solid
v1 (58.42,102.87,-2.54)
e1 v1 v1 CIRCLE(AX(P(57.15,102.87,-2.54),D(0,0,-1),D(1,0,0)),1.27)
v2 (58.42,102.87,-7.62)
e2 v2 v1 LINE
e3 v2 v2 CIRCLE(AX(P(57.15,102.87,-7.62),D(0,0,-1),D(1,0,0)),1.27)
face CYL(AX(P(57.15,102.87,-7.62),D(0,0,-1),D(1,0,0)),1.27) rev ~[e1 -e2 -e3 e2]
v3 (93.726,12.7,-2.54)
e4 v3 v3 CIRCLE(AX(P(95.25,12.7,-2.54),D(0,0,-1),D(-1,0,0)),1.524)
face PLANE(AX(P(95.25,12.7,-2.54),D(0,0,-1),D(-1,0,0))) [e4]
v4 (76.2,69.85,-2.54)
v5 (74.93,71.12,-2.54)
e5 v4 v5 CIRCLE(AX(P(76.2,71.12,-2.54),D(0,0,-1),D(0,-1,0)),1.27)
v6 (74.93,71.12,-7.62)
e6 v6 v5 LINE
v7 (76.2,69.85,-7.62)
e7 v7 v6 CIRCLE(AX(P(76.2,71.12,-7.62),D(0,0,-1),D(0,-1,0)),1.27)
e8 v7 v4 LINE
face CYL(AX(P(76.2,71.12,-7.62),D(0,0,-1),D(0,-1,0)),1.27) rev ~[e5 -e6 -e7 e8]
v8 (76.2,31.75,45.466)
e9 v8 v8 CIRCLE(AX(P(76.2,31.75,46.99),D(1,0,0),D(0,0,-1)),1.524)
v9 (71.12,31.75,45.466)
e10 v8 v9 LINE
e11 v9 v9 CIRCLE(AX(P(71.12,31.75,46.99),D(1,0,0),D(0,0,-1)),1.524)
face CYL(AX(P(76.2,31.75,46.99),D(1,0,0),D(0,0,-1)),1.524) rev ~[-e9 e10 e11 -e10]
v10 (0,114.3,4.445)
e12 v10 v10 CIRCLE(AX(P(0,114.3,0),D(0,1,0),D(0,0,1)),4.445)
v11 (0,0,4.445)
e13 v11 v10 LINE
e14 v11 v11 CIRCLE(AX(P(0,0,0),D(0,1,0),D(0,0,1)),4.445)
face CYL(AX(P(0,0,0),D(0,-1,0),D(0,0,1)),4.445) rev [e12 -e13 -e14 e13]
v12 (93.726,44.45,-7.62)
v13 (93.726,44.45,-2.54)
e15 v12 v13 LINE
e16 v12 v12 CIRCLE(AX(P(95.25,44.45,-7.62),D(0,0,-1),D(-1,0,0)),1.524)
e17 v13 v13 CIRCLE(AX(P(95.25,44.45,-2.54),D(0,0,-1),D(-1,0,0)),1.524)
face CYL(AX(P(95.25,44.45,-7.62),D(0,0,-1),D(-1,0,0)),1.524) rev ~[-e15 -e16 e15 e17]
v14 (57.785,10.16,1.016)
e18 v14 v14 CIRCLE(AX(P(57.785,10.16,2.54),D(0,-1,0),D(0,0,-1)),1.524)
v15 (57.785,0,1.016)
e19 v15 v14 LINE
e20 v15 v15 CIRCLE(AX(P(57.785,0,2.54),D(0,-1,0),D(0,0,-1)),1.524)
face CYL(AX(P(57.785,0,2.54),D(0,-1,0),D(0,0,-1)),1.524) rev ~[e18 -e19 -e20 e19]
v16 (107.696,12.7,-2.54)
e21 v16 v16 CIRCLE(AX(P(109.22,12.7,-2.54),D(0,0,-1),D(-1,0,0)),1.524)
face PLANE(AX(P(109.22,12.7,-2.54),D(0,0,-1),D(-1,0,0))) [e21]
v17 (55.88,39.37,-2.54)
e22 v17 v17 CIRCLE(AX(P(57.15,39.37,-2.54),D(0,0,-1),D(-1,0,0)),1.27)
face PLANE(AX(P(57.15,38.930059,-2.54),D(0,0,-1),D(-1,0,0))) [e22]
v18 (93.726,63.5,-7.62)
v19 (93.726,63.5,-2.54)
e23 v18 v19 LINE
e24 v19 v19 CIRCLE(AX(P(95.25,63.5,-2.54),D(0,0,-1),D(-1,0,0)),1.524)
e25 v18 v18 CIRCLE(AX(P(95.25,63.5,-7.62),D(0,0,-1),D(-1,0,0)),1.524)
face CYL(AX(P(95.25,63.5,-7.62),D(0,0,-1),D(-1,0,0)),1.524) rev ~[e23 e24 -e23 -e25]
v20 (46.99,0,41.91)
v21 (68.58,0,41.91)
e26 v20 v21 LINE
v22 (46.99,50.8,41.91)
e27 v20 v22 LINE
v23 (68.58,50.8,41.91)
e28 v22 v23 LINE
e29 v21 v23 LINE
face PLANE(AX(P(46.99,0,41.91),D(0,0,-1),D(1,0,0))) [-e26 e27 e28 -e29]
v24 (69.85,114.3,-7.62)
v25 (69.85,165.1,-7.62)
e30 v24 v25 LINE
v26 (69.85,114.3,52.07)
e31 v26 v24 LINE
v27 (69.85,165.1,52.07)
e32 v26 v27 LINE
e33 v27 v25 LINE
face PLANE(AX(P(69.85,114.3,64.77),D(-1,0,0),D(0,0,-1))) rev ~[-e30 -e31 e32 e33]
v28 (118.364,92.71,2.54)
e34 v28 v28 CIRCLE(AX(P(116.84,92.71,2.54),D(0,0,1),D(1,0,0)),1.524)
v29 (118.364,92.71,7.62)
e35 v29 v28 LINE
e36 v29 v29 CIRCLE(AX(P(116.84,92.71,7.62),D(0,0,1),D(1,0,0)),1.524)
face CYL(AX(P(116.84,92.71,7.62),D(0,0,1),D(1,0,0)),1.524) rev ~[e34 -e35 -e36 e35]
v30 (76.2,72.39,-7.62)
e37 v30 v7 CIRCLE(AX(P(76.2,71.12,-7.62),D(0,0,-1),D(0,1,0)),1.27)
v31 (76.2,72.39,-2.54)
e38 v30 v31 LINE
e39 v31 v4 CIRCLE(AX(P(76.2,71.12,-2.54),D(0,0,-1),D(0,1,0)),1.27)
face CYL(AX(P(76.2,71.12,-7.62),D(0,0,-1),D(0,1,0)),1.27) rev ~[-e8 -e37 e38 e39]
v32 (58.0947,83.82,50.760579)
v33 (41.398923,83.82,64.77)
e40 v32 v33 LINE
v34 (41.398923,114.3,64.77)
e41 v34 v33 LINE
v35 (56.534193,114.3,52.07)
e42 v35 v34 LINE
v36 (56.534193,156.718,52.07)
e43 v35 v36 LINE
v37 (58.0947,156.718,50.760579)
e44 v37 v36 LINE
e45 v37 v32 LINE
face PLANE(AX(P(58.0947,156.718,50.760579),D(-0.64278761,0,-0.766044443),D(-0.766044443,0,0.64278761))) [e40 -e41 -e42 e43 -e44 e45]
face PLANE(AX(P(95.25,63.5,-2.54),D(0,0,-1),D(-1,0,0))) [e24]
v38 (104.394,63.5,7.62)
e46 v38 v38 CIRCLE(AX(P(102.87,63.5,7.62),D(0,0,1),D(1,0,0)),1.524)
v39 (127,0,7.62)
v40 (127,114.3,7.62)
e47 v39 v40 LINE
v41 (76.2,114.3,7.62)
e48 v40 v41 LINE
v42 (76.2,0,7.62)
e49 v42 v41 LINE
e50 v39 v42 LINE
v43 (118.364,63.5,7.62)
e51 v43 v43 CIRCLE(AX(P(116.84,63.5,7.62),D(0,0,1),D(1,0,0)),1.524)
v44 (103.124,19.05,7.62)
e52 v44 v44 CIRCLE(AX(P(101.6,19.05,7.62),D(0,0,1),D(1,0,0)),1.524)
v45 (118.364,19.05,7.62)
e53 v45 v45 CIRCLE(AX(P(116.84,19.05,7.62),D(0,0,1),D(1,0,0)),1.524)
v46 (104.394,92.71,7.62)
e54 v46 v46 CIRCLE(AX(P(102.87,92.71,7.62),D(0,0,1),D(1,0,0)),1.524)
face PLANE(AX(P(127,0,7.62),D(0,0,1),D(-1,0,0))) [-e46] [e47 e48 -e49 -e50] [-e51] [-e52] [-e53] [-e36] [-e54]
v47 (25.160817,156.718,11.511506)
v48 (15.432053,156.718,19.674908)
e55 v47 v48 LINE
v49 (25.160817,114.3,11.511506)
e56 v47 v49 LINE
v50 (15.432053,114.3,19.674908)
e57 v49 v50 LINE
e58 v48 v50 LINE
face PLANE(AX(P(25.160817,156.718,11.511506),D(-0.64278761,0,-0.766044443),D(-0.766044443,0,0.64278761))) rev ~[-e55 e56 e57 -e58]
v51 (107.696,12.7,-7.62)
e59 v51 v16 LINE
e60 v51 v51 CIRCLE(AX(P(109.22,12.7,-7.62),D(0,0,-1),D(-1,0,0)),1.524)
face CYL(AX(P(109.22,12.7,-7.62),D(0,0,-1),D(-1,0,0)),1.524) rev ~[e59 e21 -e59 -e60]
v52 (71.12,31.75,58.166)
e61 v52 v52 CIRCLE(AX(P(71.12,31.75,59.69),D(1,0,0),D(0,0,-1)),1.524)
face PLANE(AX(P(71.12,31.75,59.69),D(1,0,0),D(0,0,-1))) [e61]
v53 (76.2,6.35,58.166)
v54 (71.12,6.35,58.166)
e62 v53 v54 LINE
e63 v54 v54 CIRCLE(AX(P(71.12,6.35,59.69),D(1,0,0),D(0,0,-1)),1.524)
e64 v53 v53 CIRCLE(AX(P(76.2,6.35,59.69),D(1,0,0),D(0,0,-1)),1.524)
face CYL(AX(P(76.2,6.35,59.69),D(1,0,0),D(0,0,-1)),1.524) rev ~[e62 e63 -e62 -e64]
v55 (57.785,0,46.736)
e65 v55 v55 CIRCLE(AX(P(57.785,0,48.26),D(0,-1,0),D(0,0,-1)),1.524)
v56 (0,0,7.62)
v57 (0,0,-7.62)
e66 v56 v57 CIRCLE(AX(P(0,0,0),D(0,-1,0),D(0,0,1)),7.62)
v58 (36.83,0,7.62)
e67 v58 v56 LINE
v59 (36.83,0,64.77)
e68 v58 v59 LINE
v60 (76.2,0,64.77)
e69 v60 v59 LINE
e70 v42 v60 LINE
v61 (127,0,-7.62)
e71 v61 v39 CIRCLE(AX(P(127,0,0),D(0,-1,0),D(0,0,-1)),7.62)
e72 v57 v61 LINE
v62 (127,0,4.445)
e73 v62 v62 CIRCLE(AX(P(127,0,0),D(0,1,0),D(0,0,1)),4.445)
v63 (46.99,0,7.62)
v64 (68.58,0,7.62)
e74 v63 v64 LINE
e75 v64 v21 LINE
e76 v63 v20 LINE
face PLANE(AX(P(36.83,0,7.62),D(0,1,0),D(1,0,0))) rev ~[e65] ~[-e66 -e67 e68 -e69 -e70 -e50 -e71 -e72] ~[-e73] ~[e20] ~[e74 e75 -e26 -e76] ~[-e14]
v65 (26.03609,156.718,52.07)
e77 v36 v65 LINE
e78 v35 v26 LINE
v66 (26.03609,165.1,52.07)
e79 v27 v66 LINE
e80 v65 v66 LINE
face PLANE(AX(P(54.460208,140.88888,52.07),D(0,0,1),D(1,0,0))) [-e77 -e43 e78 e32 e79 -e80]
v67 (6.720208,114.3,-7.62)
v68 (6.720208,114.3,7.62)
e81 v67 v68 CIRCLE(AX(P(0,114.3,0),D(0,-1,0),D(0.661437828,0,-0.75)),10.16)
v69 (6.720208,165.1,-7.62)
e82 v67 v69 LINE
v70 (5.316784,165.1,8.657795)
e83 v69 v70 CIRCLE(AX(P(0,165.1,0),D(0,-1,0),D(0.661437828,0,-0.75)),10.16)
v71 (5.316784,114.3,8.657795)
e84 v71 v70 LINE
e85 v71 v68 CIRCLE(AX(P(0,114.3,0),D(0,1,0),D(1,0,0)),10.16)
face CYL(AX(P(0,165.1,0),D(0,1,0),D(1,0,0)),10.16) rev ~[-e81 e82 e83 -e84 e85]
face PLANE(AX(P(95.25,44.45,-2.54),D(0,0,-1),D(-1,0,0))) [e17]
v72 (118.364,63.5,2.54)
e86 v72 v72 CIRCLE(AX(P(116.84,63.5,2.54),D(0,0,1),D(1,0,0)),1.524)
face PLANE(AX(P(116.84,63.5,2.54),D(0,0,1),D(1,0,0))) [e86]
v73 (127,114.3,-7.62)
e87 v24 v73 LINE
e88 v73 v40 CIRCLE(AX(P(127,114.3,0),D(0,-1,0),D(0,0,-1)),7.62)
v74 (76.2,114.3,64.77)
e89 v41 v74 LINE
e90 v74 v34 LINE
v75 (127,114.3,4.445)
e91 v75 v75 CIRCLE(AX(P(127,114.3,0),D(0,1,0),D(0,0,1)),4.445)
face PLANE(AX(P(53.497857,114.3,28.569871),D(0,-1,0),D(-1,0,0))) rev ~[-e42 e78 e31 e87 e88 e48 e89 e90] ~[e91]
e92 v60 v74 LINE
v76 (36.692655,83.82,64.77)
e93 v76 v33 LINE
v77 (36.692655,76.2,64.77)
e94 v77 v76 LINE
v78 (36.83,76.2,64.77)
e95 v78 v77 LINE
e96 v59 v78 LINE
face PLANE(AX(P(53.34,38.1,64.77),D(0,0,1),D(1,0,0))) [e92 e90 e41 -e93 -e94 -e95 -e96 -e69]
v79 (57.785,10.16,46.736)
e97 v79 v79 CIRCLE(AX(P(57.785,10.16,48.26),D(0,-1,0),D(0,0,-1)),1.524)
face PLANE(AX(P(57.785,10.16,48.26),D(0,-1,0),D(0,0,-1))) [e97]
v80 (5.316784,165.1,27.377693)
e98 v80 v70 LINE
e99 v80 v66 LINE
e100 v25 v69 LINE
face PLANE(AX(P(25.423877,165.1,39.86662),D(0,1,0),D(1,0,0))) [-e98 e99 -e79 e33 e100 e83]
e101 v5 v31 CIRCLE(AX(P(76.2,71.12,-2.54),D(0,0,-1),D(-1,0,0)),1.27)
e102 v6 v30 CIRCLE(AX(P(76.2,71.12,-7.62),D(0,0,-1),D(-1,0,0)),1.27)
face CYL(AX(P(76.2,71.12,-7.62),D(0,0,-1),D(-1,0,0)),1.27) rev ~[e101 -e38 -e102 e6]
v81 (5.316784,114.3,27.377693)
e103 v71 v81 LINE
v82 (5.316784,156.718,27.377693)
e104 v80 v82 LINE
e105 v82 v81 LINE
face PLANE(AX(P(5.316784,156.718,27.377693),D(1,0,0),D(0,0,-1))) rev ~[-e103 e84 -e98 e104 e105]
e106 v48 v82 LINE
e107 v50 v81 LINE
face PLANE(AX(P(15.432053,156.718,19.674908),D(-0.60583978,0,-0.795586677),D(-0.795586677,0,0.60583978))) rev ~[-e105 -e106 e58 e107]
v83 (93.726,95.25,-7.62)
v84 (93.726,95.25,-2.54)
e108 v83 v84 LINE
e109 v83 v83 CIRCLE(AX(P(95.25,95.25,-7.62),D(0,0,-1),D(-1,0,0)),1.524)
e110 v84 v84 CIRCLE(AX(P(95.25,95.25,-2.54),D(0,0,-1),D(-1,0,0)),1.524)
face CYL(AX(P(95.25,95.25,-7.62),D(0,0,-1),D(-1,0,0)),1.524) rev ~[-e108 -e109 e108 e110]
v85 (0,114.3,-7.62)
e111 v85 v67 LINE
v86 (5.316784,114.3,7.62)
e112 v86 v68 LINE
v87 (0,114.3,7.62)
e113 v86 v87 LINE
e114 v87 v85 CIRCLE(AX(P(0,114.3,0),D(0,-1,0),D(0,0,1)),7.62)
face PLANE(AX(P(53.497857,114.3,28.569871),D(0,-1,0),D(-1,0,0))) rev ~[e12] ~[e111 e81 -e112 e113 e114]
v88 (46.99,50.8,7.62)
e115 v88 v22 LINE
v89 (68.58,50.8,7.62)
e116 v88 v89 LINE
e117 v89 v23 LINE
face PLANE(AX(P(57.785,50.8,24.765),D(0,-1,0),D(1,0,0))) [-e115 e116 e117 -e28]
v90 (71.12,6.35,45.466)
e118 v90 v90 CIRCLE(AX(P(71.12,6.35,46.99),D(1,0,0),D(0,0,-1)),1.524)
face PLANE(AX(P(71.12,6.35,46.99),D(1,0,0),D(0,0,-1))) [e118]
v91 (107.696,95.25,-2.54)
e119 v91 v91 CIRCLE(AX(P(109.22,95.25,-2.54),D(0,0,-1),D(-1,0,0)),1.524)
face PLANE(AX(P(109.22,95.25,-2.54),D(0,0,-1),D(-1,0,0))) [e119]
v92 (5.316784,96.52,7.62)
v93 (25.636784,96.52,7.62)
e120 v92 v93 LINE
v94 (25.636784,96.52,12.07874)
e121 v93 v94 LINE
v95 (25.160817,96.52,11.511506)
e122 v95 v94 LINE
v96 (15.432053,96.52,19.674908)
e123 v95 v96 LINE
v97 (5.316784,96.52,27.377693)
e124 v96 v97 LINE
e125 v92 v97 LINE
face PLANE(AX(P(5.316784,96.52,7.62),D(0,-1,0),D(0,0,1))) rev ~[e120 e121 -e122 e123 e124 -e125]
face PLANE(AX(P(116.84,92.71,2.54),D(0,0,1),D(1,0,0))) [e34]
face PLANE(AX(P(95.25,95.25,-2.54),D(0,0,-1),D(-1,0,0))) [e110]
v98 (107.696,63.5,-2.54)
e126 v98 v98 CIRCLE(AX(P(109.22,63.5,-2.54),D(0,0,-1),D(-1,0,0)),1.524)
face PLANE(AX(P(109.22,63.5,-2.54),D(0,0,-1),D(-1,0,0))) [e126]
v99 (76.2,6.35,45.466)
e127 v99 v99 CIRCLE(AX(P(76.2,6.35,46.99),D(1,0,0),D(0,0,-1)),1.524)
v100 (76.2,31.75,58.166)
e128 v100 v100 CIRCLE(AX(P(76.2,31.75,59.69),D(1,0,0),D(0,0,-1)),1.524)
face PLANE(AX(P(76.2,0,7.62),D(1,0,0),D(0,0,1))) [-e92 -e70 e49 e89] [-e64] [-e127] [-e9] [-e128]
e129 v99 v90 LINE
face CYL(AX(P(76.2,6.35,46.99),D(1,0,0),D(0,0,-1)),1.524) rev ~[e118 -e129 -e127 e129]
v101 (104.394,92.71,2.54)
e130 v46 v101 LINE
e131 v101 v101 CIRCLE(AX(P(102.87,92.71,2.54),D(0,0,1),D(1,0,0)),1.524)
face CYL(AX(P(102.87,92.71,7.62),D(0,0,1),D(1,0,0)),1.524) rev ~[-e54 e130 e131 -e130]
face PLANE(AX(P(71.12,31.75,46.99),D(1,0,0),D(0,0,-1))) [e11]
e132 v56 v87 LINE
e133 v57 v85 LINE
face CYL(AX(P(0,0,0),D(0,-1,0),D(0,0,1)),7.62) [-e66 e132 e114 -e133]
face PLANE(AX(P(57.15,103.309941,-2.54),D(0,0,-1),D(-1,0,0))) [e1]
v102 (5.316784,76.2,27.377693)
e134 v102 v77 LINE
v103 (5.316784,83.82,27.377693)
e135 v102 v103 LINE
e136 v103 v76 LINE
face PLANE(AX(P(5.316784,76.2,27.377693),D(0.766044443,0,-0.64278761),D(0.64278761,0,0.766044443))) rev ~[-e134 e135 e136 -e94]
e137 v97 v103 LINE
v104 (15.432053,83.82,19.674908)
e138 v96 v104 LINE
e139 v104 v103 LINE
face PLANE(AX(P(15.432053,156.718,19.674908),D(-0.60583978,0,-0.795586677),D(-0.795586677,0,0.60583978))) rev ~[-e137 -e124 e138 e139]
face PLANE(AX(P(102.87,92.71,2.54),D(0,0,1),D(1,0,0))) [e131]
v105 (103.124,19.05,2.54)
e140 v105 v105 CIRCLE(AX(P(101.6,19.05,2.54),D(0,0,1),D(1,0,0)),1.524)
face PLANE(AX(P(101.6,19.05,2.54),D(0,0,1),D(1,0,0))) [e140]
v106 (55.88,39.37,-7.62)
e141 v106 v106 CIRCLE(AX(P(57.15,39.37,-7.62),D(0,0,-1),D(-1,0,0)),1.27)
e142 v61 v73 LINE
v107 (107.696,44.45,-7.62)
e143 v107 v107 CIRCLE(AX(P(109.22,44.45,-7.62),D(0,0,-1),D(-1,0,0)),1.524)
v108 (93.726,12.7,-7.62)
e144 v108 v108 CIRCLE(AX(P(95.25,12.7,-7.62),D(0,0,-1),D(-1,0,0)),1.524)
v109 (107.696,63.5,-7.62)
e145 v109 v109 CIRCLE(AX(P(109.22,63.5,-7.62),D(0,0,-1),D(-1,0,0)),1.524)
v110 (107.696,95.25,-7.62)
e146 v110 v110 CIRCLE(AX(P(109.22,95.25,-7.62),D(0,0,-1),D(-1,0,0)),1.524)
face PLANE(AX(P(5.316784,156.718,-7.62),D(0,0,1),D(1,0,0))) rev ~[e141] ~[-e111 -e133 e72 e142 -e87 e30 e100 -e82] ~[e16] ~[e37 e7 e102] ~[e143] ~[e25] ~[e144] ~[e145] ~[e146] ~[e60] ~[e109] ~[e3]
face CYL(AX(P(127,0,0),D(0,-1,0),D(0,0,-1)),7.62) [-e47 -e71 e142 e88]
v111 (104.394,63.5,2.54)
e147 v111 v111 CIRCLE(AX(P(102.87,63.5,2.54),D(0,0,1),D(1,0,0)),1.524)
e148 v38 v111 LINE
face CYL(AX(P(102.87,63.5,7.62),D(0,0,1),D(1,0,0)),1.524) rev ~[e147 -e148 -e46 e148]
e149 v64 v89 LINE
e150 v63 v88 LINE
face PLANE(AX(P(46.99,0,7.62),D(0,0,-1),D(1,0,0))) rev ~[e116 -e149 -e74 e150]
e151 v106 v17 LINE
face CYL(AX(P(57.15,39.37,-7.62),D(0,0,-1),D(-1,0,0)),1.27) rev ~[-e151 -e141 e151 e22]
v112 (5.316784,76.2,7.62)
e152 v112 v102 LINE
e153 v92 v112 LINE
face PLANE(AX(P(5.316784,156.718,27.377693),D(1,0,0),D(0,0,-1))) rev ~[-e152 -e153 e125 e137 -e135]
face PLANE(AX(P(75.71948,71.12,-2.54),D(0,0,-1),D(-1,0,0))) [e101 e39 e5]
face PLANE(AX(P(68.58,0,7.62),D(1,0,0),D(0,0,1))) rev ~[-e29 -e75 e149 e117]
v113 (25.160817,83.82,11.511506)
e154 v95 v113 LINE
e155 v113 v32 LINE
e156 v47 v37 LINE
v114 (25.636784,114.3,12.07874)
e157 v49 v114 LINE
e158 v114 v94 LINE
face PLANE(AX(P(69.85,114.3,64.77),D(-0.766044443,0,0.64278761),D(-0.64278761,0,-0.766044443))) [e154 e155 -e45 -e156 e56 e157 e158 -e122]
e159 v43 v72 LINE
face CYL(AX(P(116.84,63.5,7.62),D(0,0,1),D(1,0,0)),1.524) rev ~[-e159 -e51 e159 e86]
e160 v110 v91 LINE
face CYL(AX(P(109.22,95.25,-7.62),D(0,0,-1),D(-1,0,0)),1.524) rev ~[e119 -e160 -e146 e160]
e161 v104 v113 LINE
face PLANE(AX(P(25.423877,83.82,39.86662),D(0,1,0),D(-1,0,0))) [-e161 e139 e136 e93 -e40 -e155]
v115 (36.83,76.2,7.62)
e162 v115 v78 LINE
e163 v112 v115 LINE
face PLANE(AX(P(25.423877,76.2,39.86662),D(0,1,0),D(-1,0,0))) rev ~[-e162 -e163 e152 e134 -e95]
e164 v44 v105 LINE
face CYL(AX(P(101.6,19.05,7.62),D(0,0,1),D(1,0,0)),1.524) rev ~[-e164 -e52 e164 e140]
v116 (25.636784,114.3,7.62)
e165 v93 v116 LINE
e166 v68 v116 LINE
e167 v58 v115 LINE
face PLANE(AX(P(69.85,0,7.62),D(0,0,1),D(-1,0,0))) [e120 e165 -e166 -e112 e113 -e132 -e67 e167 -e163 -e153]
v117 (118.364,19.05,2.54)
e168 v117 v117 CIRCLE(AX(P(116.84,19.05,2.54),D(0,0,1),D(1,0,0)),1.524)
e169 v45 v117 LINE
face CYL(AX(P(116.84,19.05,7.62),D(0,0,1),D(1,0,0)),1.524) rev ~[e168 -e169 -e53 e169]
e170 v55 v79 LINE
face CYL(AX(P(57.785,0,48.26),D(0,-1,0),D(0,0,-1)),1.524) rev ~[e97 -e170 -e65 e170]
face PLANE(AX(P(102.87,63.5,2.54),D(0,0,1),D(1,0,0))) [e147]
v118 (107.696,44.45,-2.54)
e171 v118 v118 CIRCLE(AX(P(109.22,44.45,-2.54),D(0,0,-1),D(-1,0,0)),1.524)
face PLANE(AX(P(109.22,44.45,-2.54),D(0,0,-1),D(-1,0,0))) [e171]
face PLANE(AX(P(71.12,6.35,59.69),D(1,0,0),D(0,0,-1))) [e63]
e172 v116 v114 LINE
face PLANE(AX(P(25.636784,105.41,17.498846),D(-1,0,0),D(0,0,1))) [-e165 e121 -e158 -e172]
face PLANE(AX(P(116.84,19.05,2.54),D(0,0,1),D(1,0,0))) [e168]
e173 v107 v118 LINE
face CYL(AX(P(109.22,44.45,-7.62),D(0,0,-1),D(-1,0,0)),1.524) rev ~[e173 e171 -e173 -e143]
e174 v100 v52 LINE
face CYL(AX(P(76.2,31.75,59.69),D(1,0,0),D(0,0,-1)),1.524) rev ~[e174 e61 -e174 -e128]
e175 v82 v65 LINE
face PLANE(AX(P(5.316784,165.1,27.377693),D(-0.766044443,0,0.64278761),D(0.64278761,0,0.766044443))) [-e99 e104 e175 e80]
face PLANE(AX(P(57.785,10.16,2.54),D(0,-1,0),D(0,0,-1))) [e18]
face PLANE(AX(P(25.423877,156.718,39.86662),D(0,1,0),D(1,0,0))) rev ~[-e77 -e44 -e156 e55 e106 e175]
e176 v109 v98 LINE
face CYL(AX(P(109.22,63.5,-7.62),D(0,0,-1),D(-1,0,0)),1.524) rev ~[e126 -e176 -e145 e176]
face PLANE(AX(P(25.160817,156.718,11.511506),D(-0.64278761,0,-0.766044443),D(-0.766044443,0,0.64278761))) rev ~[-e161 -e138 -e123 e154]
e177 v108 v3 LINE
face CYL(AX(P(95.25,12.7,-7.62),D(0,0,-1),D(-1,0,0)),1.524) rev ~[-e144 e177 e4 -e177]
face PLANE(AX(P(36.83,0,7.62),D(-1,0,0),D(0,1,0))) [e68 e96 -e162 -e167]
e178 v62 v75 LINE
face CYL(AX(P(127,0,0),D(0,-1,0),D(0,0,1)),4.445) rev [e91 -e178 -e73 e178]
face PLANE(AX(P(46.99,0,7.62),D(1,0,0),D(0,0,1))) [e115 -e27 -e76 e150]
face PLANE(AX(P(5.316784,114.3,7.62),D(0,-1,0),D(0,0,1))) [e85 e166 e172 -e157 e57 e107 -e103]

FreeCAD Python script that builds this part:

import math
import FreeCAD as App
import Part
import Sketcher
Q = App.Units.Quantity

doc = App.newDocument("Part")
params = doc.addObject("Spreadsheet::Sheet", "Params")
for row, (alias, value) in enumerate([
    ("sketch1_radius", "0.3 in"),
    ("sketch1_diameter", "0.35 in"),
    ("sketch1_width", "5 in"),
    ("sketch1_width2", "2 in"),
    ("sketch1_width3", "2.75 in"),
    ("pad1_length", "4.5 in"),
    ("sketch2_height", "2.25 in"),
    ("pad2_length", "1.5 in"),
    ("sketch3_height", "0.6 in"),
    ("sketch3_height2", "2.85 in"),
    ("pad3_length", "2 in"),
    ("pad4_length", "0.3 in"),
    ("sketch5_height", "0.6 in"),
    ("pad5_length", "0.33 in"),
    ("sketch6_height", "0.6 in"),
    ("sketch6_length", "0.2 in"),
    ("sketch6_length2", "0.5 in"),
    ("pad6_length", "3 in"),
    ("pad7_length", "0.3 in"),
    ("pad8_length", "0.33 in"),
    ("pad9_length", "2.9 in"),
    ("sketch10_length", "0.72 in"),
    ("pad10_length", "2.89 in"),
    ("sketch11_width", "0.7 in"),
    ("pocket1_length", "0.8 in"),
    ("sketch12_diameter", "0.8 in"),
    ("pocket2_length", "2 in"),
    ("sketch13_height", "2 in"),
    ("sketch13_height2", "0.33 in"),
    ("pocket3_length", "0.5 in"),
    ("sketch14_height", "3 in"),
    ("sketch14_width", "1.3 in"),
    ("pad11_length", "2.25 in"),
    ("sketch15_diameter", "0.12 in"),
    ("pocket4_length", "0.2 in"),
    ("sketch16_diameter", "0.12 in"),
    ("pocket5_length", "0.2 in"),
    ("sketch17_diameter", "0.12 in"),
    ("pocket6_length", "0.2 in"),
    ("sketch18_width", "0.85 in"),
    ("sketch18_height", "1.35 in"),
    ("pocket7_length", "2 in"),
    ("sketch19_diameter", "0.12 in"),
    ("pocket8_length", "0.4 in"),
    ("sketch20_diameter", "0.1 in"),
    ("pocket9_length", "0.2 in"),
], start=1):
    params.set(f"A{row}", alias)
    params.set(f"B{row}", "=" + value)
    params.setAlias(f"B{row}", alias)

body = doc.addObject("PartDesign::Body", "Body")

sketch1 = body.newObject("Sketcher::SketchObject", "Sketch")
sketch1.AttachmentSupport = (doc.getObject("XZ_Plane"), [""])
sketch1.MapMode = "FlatFace"
sketch1.addGeometry([
    Part.LineSegment(App.Vector(127, -7.62, 0), App.Vector(0, -7.62, 0)),
    Part.ArcOfCircle(Part.Circle(App.Vector(0, 0, 0), App.Vector(0, 0, 1), 7.62), math.radians(90), math.radians(270)),
    Part.LineSegment(App.Vector(0, 7.62, 0), App.Vector(69.85, 7.62, 0)),
    Part.LineSegment(App.Vector(69.85, 7.62, 0), App.Vector(69.85, 64.77, 0)),
    Part.LineSegment(App.Vector(69.85, 64.77, 0), App.Vector(76.2, 64.77, 0)),
    Part.LineSegment(App.Vector(76.2, 64.77, 0), App.Vector(76.2, 7.62, 0)),
    Part.LineSegment(App.Vector(76.2, 7.62, 0), App.Vector(127, 7.62, 0)),
    Part.ArcOfCircle(Part.Circle(App.Vector(127, 0, 0), App.Vector(0, 0, 1), 7.62), math.radians(-90), math.radians(90)),
    Part.Circle(App.Vector(127, 0, 0), App.Vector(0, 0, 1), 4.445),
    Part.Circle(App.Vector(0, 0, 0), App.Vector(0, 0, 1), 4.445),
], False)
sketch1.addConstraint([
    Sketcher.Constraint("Tangent", 0, 2, 1, 2),
    Sketcher.Constraint("Tangent", 1, 1, 2, 1),
    Sketcher.Constraint("Coincident", 2, 2, 3, 1),
    Sketcher.Constraint("Coincident", 3, 2, 4, 1),
    Sketcher.Constraint("Coincident", 4, 2, 5, 1),
    Sketcher.Constraint("Coincident", 5, 2, 6, 1),
    Sketcher.Constraint("Tangent", 6, 2, 7, 2),
    Sketcher.Constraint("Tangent", 7, 1, 0, 1),
    Sketcher.Constraint("Horizontal", 0),
    Sketcher.Constraint("Horizontal", 2),
    Sketcher.Constraint("Vertical", 3),
    Sketcher.Constraint("Horizontal", 4),
    Sketcher.Constraint("Vertical", 5),
    Sketcher.Constraint("Horizontal", 6),
    Sketcher.Constraint("Coincident", 1, 3, -1, 1),
    Sketcher.Constraint("Coincident", 9, 3, -1, 1),
    Sketcher.Constraint("Coincident", 8, 3, 7, 3),
    Sketcher.Constraint("Equal", 1, 7),
    Sketcher.Constraint("Equal", 8, 9),
    Sketcher.Constraint("Radius", 1, Q("0.3 in")),
    Sketcher.Constraint("Diameter", 8, Q("0.35 in")),
    Sketcher.Constraint("DistanceX", 0, 2, 0, 1, Q("5 in")),
    Sketcher.Constraint("DistanceX", 6, 1, 6, 2, Q("2 in")),
    Sketcher.Constraint("DistanceX", 2, 1, 2, 2, Q("2.75 in")),
    Sketcher.Constraint("DistanceY", 3, 1, 3, 2, Q("2.25 in")),
])
sketch1.setExpression("Constraints[19]", "Params.sketch1_radius")
sketch1.setExpression("Constraints[20]", "Params.sketch1_diameter")
sketch1.setExpression("Constraints[21]", "Params.sketch1_width")
sketch1.setExpression("Constraints[22]", "Params.sketch1_width2")
sketch1.setExpression("Constraints[23]", "Params.sketch1_width3")
pad1 = body.newObject("PartDesign::Pad", "Pad")
pad1.Profile = sketch1
pad1.setExpression("Length", "Params.pad1_length")
pad1.Reversed = True

sketch2 = body.newObject("Sketcher::SketchObject", "Sketch001")
sketch2.AttachmentSupport = (doc.getObject("XZ_Plane"), [""])
sketch2.MapMode = "FlatFace"
sketch2.AttachmentOffset = App.Placement(App.Vector(0, 0, -4.5 * 25.4), App.Rotation())
sketch2.addGeometry([
    Part.LineSegment(App.Vector(69.85, 64.77, 0), App.Vector(69.85, 7.62, 0)),
    Part.LineSegment(App.Vector(69.85, 7.62, 0), App.Vector(21.895456, 7.62, 0)),
    Part.LineSegment(App.Vector(21.895456, 7.62, 0), App.Vector(69.85, 64.77, 0)),
], False)
sketch2.addConstraint([
    Sketcher.Constraint("Coincident", 0, 2, 1, 1),
    Sketcher.Constraint("Coincident", 1, 2, 2, 1),
    Sketcher.Constraint("Coincident", 2, 2, 0, 1),
    Sketcher.Constraint("Vertical", 0),
    Sketcher.Constraint("Horizontal", 1),
    Sketcher.Constraint("Angle", 2, Q("50 deg")),
    Sketcher.Constraint("DistanceY", 0, 2, 0, 1, Q("2.25 in")),
    Sketcher.Constraint("DistanceY", -1, 1, 0, 2, Q("0.3 in")),
    Sketcher.Constraint("DistanceX", -1, 1, 0, 2, Q("2.75 in")),
])
sketch2.setExpression("Constraints[6]", "Params.sketch2_height")
pad2 = body.newObject("PartDesign::Pad", "Pad001")
pad2.Profile = sketch2
pad2.setExpression("Length", "Params.pad2_length")

sketch3 = body.newObject("Sketcher::SketchObject", "Sketch002")
sketch3.AttachmentSupport = (doc.getObject("XZ_Plane"), [""])
sketch3.MapMode = "FlatFace"
sketch3.AttachmentOffset = App.Placement(App.Vector(0, 0, -4.5 * 25.4), App.Rotation())
sketch3.addGeometry([
    Part.LineSegment(App.Vector(21.895456, -7.62, 0), App.Vector(21.895456, 7.62, 0)),
    Part.LineSegment(App.Vector(21.895456, 7.62, 0), App.Vector(69.85, 64.77, 0)),
    Part.LineSegment(App.Vector(69.85, 64.77, 0), App.Vector(69.85, -7.62, 0)),
    Part.LineSegment(App.Vector(69.85, -7.62, 0), App.Vector(21.895456, -7.62, 0)),
], False)
sketch3.addConstraint([
    Sketcher.Constraint("Coincident", 0, 2, 1, 1),
    Sketcher.Constraint("Coincident", 1, 2, 2, 1),
    Sketcher.Constraint("Coincident", 2, 2, 3, 1),
    Sketcher.Constraint("Coincident", 3, 2, 0, 1),
    Sketcher.Constraint("Vertical", 0),
    Sketcher.Constraint("Vertical", 2),
    Sketcher.Constraint("Horizontal", 3),
    Sketcher.Constraint("DistanceY", 0, 1, 0, 2, Q("0.6 in")),
    Sketcher.Constraint("Angle", 1, Q("50 deg")),
    Sketcher.Constraint("DistanceY", 2, 2, 2, 1, Q("2.85 in")),
    Sketcher.Constraint("DistanceY", -1, 1, 0, 2, Q("0.3 in")),
    Sketcher.Constraint("DistanceX", -1, 1, 1, 2, Q("2.75 in")),
])
sketch3.setExpression("Constraints[7]", "Params.sketch3_height")
sketch3.setExpression("Constraints[9]", "Params.sketch3_height2")
pad3 = body.newObject("PartDesign::Pad", "Pad002")
pad3.Profile = sketch3
pad3.setExpression("Length", "Params.pad3_length")
pad3.Reversed = True

sketch4 = body.newObject("Sketcher::SketchObject", "Sketch003")
sketch4.AttachmentSupport = (doc.getObject("XZ_Plane"), [""])
sketch4.MapMode = "FlatFace"
sketch4.AttachmentOffset = App.Placement(App.Vector(0, 0, -3 * 25.4), App.Rotation())
sketch4.addGeometry([
    Part.LineSegment(App.Vector(21.895456, 7.62, 0), App.Vector(69.85, 64.77, 0)),
    Part.LineSegment(App.Vector(69.85, 64.77, 0), App.Vector(53.271327, 64.77, 0)),
    Part.LineSegment(App.Vector(53.271327, 64.77, 0), App.Vector(12.166692, 15.783403, 0)),
    Part.LineSegment(App.Vector(12.166692, 15.783403, 0), App.Vector(5.316784, 7.62, 0)),
    Part.LineSegment(App.Vector(5.316784, 7.62, 0), App.Vector(21.895456, 7.62, 0)),
], False)
sketch4.addConstraint([
    Sketcher.Constraint("Coincident", 0, 2, 1, 1),
    Sketcher.Constraint("Coincident", 1, 2, 2, 1),
    Sketcher.Constraint("Coincident", 2, 2, 3, 1),
    Sketcher.Constraint("Coincident", 3, 2, 4, 1),
    Sketcher.Constraint("Coincident", 4, 2, 0, 1),
    Sketcher.Constraint("Horizontal", 1),
    Sketcher.Constraint("Horizontal", 4),
    Sketcher.Constraint("Parallel", 0, 2),
    Sketcher.Constraint("Parallel", 2, 3),
    Sketcher.Constraint("Angle", 0, Q("50 deg")),
    Sketcher.Constraint("DistanceY", -1, 1, 3, 2, Q("0.3 in")),
    Sketcher.Constraint("DistanceX", -1, 1, 0, 2, Q("2.75 in")),
    Sketcher.Constraint("DistanceY", -1, 1, 0, 2, Q("2.55 in")),
    Sketcher.Constraint("Distance", 2, 63.947461),
    Sketcher.Constraint("DistanceX", 1, 2, 1, 1, 16.578673),
])
pad4 = body.newObject("PartDesign::Pad", "Pad003")
pad4.Profile = sketch4
pad4.setExpression("Length", "Params.pad4_length")
pad4.Reversed = True

sketch5 = body.newObject("Sketcher::SketchObject", "Sketch004")
sketch5.AttachmentSupport = (doc.getObject("XZ_Plane"), [""])
sketch5.MapMode = "FlatFace"
sketch5.AttachmentOffset = App.Placement(App.Vector(0, 0, -6.5 * 25.4), App.Rotation())
sketch5.addGeometry([
    Part.LineSegment(App.Vector(53.271327, 64.77, 0), App.Vector(69.85, 64.77, 0)),
    Part.LineSegment(App.Vector(69.85, 64.77, 0), App.Vector(21.895456, 7.62, 0)),
    Part.LineSegment(App.Vector(21.895456, 7.62, 0), App.Vector(21.895456, -7.62, 0)),
    Part.LineSegment(App.Vector(21.895456, -7.62, 0), App.Vector(5.316784, -7.62, 0)),
    Part.LineSegment(App.Vector(5.316784, -7.62, 0), App.Vector(5.316784, 7.62, 0)),
    Part.LineSegment(App.Vector(5.316784, 7.62, 0), App.Vector(53.271327, 64.77, 0)),
], False)
sketch5.addConstraint([
    Sketcher.Constraint("Coincident", 0, 2, 1, 1),
    Sketcher.Constraint("Coincident", 1, 2, 2, 1),
    Sketcher.Constraint("Coincident", 2, 2, 3, 1),
    Sketcher.Constraint("Coincident", 3, 2, 4, 1),
    Sketcher.Constraint("Coincident", 4, 2, 5, 1),
    Sketcher.Constraint("Coincident", 5, 2, 0, 1),
    Sketcher.Constraint("Horizontal", 0),
    Sketcher.Constraint("Vertical", 2),
    Sketcher.Constraint("Horizontal", 3),
    Sketcher.Constraint("Vertical", 4),
    Sketcher.Constraint("Parallel", 1, 5),
    Sketcher.Constraint("Horizontal", 1, 2, 4, 2),
    Sketcher.Constraint("DistanceY", 2, 2, 2, 1, Q("0.6 in")),
    Sketcher.Constraint("Angle", 1, Q("-130 deg")),
    Sketcher.Constraint("DistanceY", -1, 1, 1, 2, Q("0.3 in")),
    Sketcher.Constraint("DistanceX", -1, 1, 0, 2, Q("2.75 in")),
    Sketcher.Constraint("DistanceY", -1, 1, 0, 2, Q("2.55 in")),
    Sketcher.Constraint("DistanceX", 0, 1, 0, 2, 16.578673),
])
sketch5.setExpression("Constraints[12]", "Params.sketch5_height")
pad5 = body.newObject("PartDesign::Pad", "Pad004")
pad5.Profile = sketch5
pad5.setExpression("Length", "Params.pad5_length")

sketch6 = body.newObject("Sketcher::SketchObject", "Sketch005")
sketch6.AttachmentSupport = (doc.getObject("XZ_Plane"), [""])
sketch6.MapMode = "FlatFace"
sketch6.AttachmentOffset = App.Placement(App.Vector(0, 0, -6.17 * 25.4), App.Rotation())
sketch6.addGeometry([
    Part.LineSegment(App.Vector(12.166692, 15.783403, 0), App.Vector(5.316784, 7.62, 0)),
    Part.LineSegment(App.Vector(5.316784, 7.62, 0), App.Vector(5.316784, -7.62, 0)),
    Part.LineSegment(App.Vector(5.316784, -7.62, 0), App.Vector(21.895456, -7.62, 0)),
    Part.LineSegment(App.Vector(21.895456, -7.62, 0), App.Vector(21.895456, 7.62, 0)),
    Part.LineSegment(App.Vector(21.895456, 7.62, 0), App.Vector(25.160817, 11.511506, 0)),
    Part.LineSegment(App.Vector(25.160817, 11.511506, 0), App.Vector(15.432053, 19.674908, 0)),
    Part.LineSegment(App.Vector(15.432053, 19.674908, 0), App.Vector(12.166692, 15.783403, 0)),
], False)
sketch6.addConstraint([
    Sketcher.Constraint("Coincident", 0, 2, 1, 1),
    Sketcher.Constraint("Coincident", 1, 2, 2, 1),
    Sketcher.Constraint("Coincident", 2, 2, 3, 1),
    Sketcher.Constraint("Coincident", 3, 2, 4, 1),
    Sketcher.Constraint("Coincident", 4, 2, 5, 1),
    Sketcher.Constraint("Coincident", 5, 2, 6, 1),
    Sketcher.Constraint("Coincident", 6, 2, 0, 1),
    Sketcher.Constraint("Vertical", 1),
    Sketcher.Constraint("Horizontal", 2),
    Sketcher.Constraint("Vertical", 3),
    Sketcher.Constraint("Parallel", 0, 4),
    Sketcher.Constraint("Perpendicular", 4, 5),
    Sketcher.Constraint("Perpendicular", 5, 6),
    Sketcher.Constraint("Horizontal", 0, 2, 3, 2),
    Sketcher.Constraint("Equal", 4, 6),
    Sketcher.Constraint("DistanceY", 1, 2, 1, 1, Q("0.6 in")),
    Sketcher.Constraint("Angle", 0, Q("-130 deg")),
    Sketcher.Constraint("Distance", 4, Q("0.2 in")),
    Sketcher.Constraint("Distance", 5, Q("0.5 in")),
    Sketcher.Constraint("DistanceY", -1, 1, 0, 2, Q("0.3 in")),
    Sketcher.Constraint("DistanceX", -1, 1, 6, 2, 12.166692),
])
sketch6.setExpression("Constraints[15]", "Params.sketch6_height")
sketch6.setExpression("Constraints[17]", "Params.sketch6_length")
sketch6.setExpression("Constraints[18]", "Params.sketch6_length2")
pad6 = body.newObject("PartDesign::Pad", "Pad005")
pad6.Profile = sketch6
pad6.setExpression("Length", "Params.pad6_length")

sketch7 = body.newObject("Sketcher::SketchObject", "Sketch006")
sketch7.AttachmentSupport = (doc.getObject("XZ_Plane"), [""])
sketch7.MapMode = "FlatFace"
sketch7.AttachmentOffset = App.Placement(App.Vector(0, 0, -3 * 25.4), App.Rotation())
sketch7.addGeometry([
    Part.LineSegment(App.Vector(5.316784, 27.377693, 0), App.Vector(5.316784, 7.62, 0)),
    Part.LineSegment(App.Vector(5.316784, 7.62, 0), App.Vector(53.271327, 64.77, 0)),
    Part.LineSegment(App.Vector(53.271327, 64.77, 0), App.Vector(36.692655, 64.77, 0)),
    Part.LineSegment(App.Vector(36.692655, 64.77, 0), App.Vector(5.316784, 27.377693, 0)),
], False)
sketch7.addConstraint([
    Sketcher.Constraint("Coincident", 0, 2, 1, 1),
    Sketcher.Constraint("Coincident", 1, 2, 2, 1),
    Sketcher.Constraint("Coincident", 2, 2, 3, 1),
    Sketcher.Constraint("Coincident", 3, 2, 0, 1),
    Sketcher.Constraint("Vertical", 0),
    Sketcher.Constraint("Horizontal", 2),
    Sketcher.Constraint("Parallel", 1, 3),
    Sketcher.Constraint("Angle", 1, Q("50 deg")),
    Sketcher.Constraint("DistanceY", -1, 1, 0, 2, Q("0.3 in")),
    Sketcher.Constraint("DistanceY", -1, 1, 1, 2, Q("2.55 in")),
    Sketcher.Constraint("Distance", 3, 48.812191),
    Sketcher.Constraint("DistanceX", -1, 1, 0, 2, 5.316784),
])
pad7 = body.newObject("PartDesign::Pad", "Pad006")
pad7.Profile = sketch7
pad7.setExpression("Length", "Params.pad7_length")
pad7.Reversed = True

sketch8 = body.newObject("Sketcher::SketchObject", "Sketch007")
sketch8.AttachmentSupport = (doc.getObject("XZ_Plane"), [""])
sketch8.MapMode = "FlatFace"
sketch8.AttachmentOffset = App.Placement(App.Vector(0, 0, -6.5 * 25.4), App.Rotation())
sketch8.addGeometry([
    Part.LineSegment(App.Vector(5.316784, 7.62, 0), App.Vector(5.316784, 27.377693, 0)),
    Part.LineSegment(App.Vector(5.316784, 27.377693, 0), App.Vector(36.692655, 64.77, 0)),
    Part.LineSegment(App.Vector(36.692655, 64.77, 0), App.Vector(53.271327, 64.77, 0)),
    Part.LineSegment(App.Vector(53.271327, 64.77, 0), App.Vector(5.316784, 7.62, 0)),
], False)
sketch8.addConstraint([
    Sketcher.Constraint("Coincident", 0, 2, 1, 1),
    Sketcher.Constraint("Coincident", 1, 2, 2, 1),
    Sketcher.Constraint("Coincident", 2, 2, 3, 1),
    Sketcher.Constraint("Coincident", 3, 2, 0, 1),
    Sketcher.Constraint("Vertical", 0),
    Sketcher.Constraint("Horizontal", 2),
    Sketcher.Constraint("Parallel", 1, 3),
    Sketcher.Constraint("Angle", 1, Q("50 deg")),
    Sketcher.Constraint("DistanceY", -1, 1, 3, 2, Q("0.3 in")),
    Sketcher.Constraint("DistanceY", -1, 1, 1, 2, Q("2.55 in")),
    Sketcher.Constraint("Distance", 1, 48.812191),
    Sketcher.Constraint("DistanceX", -1, 1, 0, 2, 5.316784),
])
pad8 = body.newObject("PartDesign::Pad", "Pad007")
pad8.Profile = sketch8
pad8.setExpression("Length", "Params.pad8_length")

sketch9 = body.newObject("Sketcher::SketchObject", "Sketch008")
sketch9.AttachmentSupport = (doc.getObject("XZ_Plane"), [""])
sketch9.MapMode = "FlatFace"
sketch9.AttachmentOffset = App.Placement(App.Vector(0, 0, -6.17 * 25.4), App.Rotation())
sketch9.addGeometry([
    Part.LineSegment(App.Vector(15.432053, 19.674908, 0), App.Vector(5.316784, 27.377693, 0)),
    Part.LineSegment(App.Vector(5.316784, 27.377693, 0), App.Vector(5.316784, 7.62, 0)),
    Part.LineSegment(App.Vector(5.316784, 7.62, 0), App.Vector(15.432053, 19.674908, 0)),
], False)
sketch9.addConstraint([
    Sketcher.Constraint("Coincident", 0, 2, 1, 1),
    Sketcher.Constraint("Coincident", 1, 2, 2, 1),
    Sketcher.Constraint("Coincident", 2, 2, 0, 1),
    Sketcher.Constraint("Vertical", 1),
    Sketcher.Constraint("Angle", 2, Q("50 deg")),
    Sketcher.Constraint("DistanceY", -1, 1, 1, 2, Q("0.3 in")),
    Sketcher.Constraint("DistanceY", 1, 2, 1, 1, 19.757693),
    Sketcher.Constraint("DistanceY", -1, 1, 2, 2, 19.674908),
    Sketcher.Constraint("DistanceX", -1, 1, 0, 2, 5.316784),
])
pad9 = body.newObject("PartDesign::Pad", "Pad008")
pad9.Profile = sketch9
pad9.setExpression("Length", "Params.pad9_length")

sketch10 = body.newObject("Sketcher::SketchObject", "Sketch009")
sketch10.AttachmentSupport = (doc.getObject("XZ_Plane"), [""])
sketch10.MapMode = "FlatFace"
sketch10.AttachmentOffset = App.Placement(App.Vector(0, 0, -6.17 * 25.4), App.Rotation())
sketch10.addGeometry([
    Part.LineSegment(App.Vector(58.0947, 50.760579, 0), App.Vector(69.85, 64.77, 0)),
    Part.LineSegment(App.Vector(69.85, 64.77, 0), App.Vector(41.398923, 64.77, 0)),
    Part.LineSegment(App.Vector(41.398923, 64.77, 0), App.Vector(58.0947, 50.760579, 0)),
], False)
sketch10.addConstraint([
    Sketcher.Constraint("Coincident", 0, 2, 1, 1),
    Sketcher.Constraint("Coincident", 1, 2, 2, 1),
    Sketcher.Constraint("Coincident", 2, 2, 0, 1),
    Sketcher.Constraint("Horizontal", 1),
    Sketcher.Constraint("Perpendicular", 0, 2),
    Sketcher.Constraint("Angle", 0, Q("50 deg")),
    Sketcher.Constraint("Distance", 0, Q("0.72 in")),
    Sketcher.Constraint("DistanceX", -1, 1, 0, 2, Q("2.75 in")),
    Sketcher.Constraint("DistanceY", -1, 1, 0, 2, Q("2.55 in")),
])
sketch10.setExpression("Constraints[6]", "Params.sketch10_length")
pad10 = body.newObject("PartDesign::Pad", "Pad009")
pad10.Profile = sketch10
pad10.setExpression("Length", "Params.pad10_length")

sketch11 = body.newObject("Sketcher::SketchObject", "Sketch010")
sketch11.AttachmentSupport = (doc.getObject("YZ_Plane"), [""])
sketch11.MapMode = "FlatFace"
sketch11.AttachmentOffset = App.Placement(App.Vector(0, 0, 5.316784), App.Rotation())
sketch11.addGeometry([
    Part.LineSegment(App.Vector(114.3, 7.62, 0), App.Vector(96.52, 7.62, 0)),
    Part.LineSegment(App.Vector(96.52, 7.62, 0), App.Vector(96.52, 27.377693, 0)),
    Part.LineSegment(App.Vector(96.52, 27.377693, 0), App.Vector(114.3, 27.377693, 0)),
    Part.LineSegment(App.Vector(114.3, 27.377693, 0), App.Vector(114.3, 7.62, 0)),
], False)
sketch11.addConstraint([
    Sketcher.Constraint("Coincident", 0, 2, 1, 1),
    Sketcher.Constraint("Coincident", 1, 2, 2, 1),
    Sketcher.Constraint("Coincident", 2, 2, 3, 1),
    Sketcher.Constraint("Coincident", 3, 2, 0, 1),
    Sketcher.Constraint("Horizontal", 0),
    Sketcher.Constraint("Vertical", 1),
    Sketcher.Constraint("Horizontal", 2),
    Sketcher.Constraint("Vertical", 3),
    Sketcher.Constraint("DistanceX", 0, 2, 0, 1, Q("0.7 in")),
    Sketcher.Constraint("DistanceX", -1, 1, 0, 2, Q("3.8 in")),
    Sketcher.Constraint("DistanceY", -1, 1, 0, 2, Q("0.3 in")),
    Sketcher.Constraint("DistanceY", 1, 1, 1, 2, 19.757693),
])
sketch11.setExpression("Constraints[8]", "Params.sketch11_width")
pocket1 = body.newObject("PartDesign::Pocket", "Pocket")
pocket1.Profile = sketch11
pocket1.setExpression("Length", "Params.pocket1_length")
pocket1.Reversed = True

sketch12 = body.newObject("Sketcher::SketchObject", "Sketch011")
sketch12.AttachmentSupport = (doc.getObject("XZ_Plane"), [""])
sketch12.MapMode = "FlatFace"
sketch12.AttachmentOffset = App.Placement(App.Vector(0, 0, -6.5 * 25.4), App.Rotation())
sketch12.addGeometry(Part.Circle(App.Vector(0, 0, 0), App.Vector(0, 0, 1), 10.16), False)
sketch12.addConstraint([
    Sketcher.Constraint("Coincident", 0, 3, -1, 1),
    Sketcher.Constraint("Diameter", 0, Q("0.8 in")),
])
sketch12.setExpression("Constraints[1]", "Params.sketch12_diameter")
pocket2 = body.newObject("PartDesign::Pocket", "Pocket001")
pocket2.Profile = sketch12
pocket2.setExpression("Length", "Params.pocket2_length")
pocket2.Reversed = True

sketch13 = body.newObject("Sketcher::SketchObject", "Sketch012")
sketch13.AttachmentSupport = (doc.getObject("XY_Plane"), [""])
sketch13.MapMode = "FlatFace"
sketch13.AttachmentOffset = App.Placement(App.Vector(0, 0, 2.55 * 25.4), App.Rotation())
sketch13.addGeometry([
    Part.LineSegment(App.Vector(41.398923, 114.3, 0), App.Vector(69.85, 114.3, 0)),
    Part.LineSegment(App.Vector(69.85, 114.3, 0), App.Vector(69.85, 165.1, 0)),
    Part.LineSegment(App.Vector(69.85, 165.1, 0), App.Vector(12.961763, 165.1, 0)),
    Part.LineSegment(App.Vector(12.961763, 165.1, 0), App.Vector(12.961763, 156.718, 0)),
    Part.LineSegment(App.Vector(12.961763, 156.718, 0), App.Vector(41.398923, 156.718, 0)),
    Part.LineSegment(App.Vector(41.398923, 156.718, 0), App.Vector(41.398923, 114.3, 0)),
], False)
sketch13.addConstraint([
    Sketcher.Constraint("Coincident", 0, 2, 1, 1),
    Sketcher.Constraint("Coincident", 1, 2, 2, 1),
    Sketcher.Constraint("Coincident", 2, 2, 3, 1),
    Sketcher.Constraint("Coincident", 3, 2, 4, 1),
    Sketcher.Constraint("Coincident", 4, 2, 5, 1),
    Sketcher.Constraint("Coincident", 5, 2, 0, 1),
    Sketcher.Constraint("Horizontal", 0),
    Sketcher.Constraint("Vertical", 1),
    Sketcher.Constraint("Horizontal", 2),
    Sketcher.Constraint("Vertical", 3),
    Sketcher.Constraint("Horizontal", 4),
    Sketcher.Constraint("Vertical", 5),
    Sketcher.Constraint("DistanceY", 1, 1, 1, 2, Q("2 in")),
    Sketcher.Constraint("DistanceY", 3, 2, 3, 1, Q("0.33 in")),
    Sketcher.Constraint("DistanceY", -1, 1, 0, 2, Q("4.5 in")),
    Sketcher.Constraint("DistanceX", -1, 1, 0, 2, Q("2.75 in")),
    Sketcher.Constraint("DistanceX", 4, 1, 4, 2, 28.43716),
    Sketcher.Constraint("DistanceX", 0, 1, 0, 2, 28.451077),
])
sketch13.setExpression("Constraints[12]", "Params.sketch13_height")
sketch13.setExpression("Constraints[13]", "Params.sketch13_height2")
pocket3 = body.newObject("PartDesign::Pocket", "Pocket002")
pocket3.Profile = sketch13
pocket3.setExpression("Length", "Params.pocket3_length")

sketch14 = body.newObject("Sketcher::SketchObject", "Sketch013")
sketch14.AttachmentSupport = (doc.getObject("XY_Plane"), [""])
sketch14.MapMode = "FlatFace"
sketch14.AttachmentOffset = App.Placement(App.Vector(0, 0, 0.3 * 25.4), App.Rotation())
sketch14.addGeometry([
    Part.LineSegment(App.Vector(36.83, 76.2, 0), App.Vector(36.83, 0, 0)),
    Part.LineSegment(App.Vector(36.83, 0, 0), App.Vector(69.85, 0, 0)),
    Part.LineSegment(App.Vector(69.85, 0, 0), App.Vector(69.85, 76.2, 0)),
    Part.LineSegment(App.Vector(69.85, 76.2, 0), App.Vector(36.83, 76.2, 0)),
], False)
sketch14.addConstraint([
    Sketcher.Constraint("Coincident", 0, 2, 1, 1),
    Sketcher.Constraint("Coincident", 1, 2, 2, 1),
    Sketcher.Constraint("Coincident", 2, 2, 3, 1),
    Sketcher.Constraint("Coincident", 3, 2, 0, 1),
    Sketcher.Constraint("Vertical", 0),
    Sketcher.Constraint("Horizontal", 1),
    Sketcher.Constraint("Vertical", 2),
    Sketcher.Constraint("Horizontal", 3),
    Sketcher.Constraint("PointOnObject", 0, 2, -1),
    Sketcher.Constraint("DistanceY", 0, 2, 0, 1, Q("3 in")),
    Sketcher.Constraint("DistanceX", 1, 1, 1, 2, Q("1.3 in")),
    Sketcher.Constraint("DistanceX", -1, 1, 0, 2, Q("1.45 in")),
])
sketch14.setExpression("Constraints[9]", "Params.sketch14_height")
sketch14.setExpression("Constraints[10]", "Params.sketch14_width")
pad11 = body.newObject("PartDesign::Pad", "Pad010")
pad11.Profile = sketch14
pad11.setExpression("Length", "Params.pad11_length")

sketch15 = body.newObject("Sketcher::SketchObject", "Sketch014")
sketch15.AttachmentSupport = (doc.getObject("XY_Plane"), [""])
sketch15.MapMode = "FlatFace"
sketch15.AttachmentOffset = App.Placement(App.Vector(0, 0, -0.3 * 25.4), App.Rotation())
sketch15.addGeometry([
    Part.Circle(App.Vector(109.22, 95.25, 0), App.Vector(0, 0, 1), 1.524),
    Part.Circle(App.Vector(95.25, 95.25, 0), App.Vector(0, 0, 1), 1.524),
    Part.Circle(App.Vector(95.25, 63.5, 0), App.Vector(0, 0, 1), 1.524),
    Part.Circle(App.Vector(109.22, 63.5, 0), App.Vector(0, 0, 1), 1.524),
    Part.Circle(App.Vector(109.22, 44.45, 0), App.Vector(0, 0, 1), 1.524),
    Part.Circle(App.Vector(95.25, 44.45, 0), App.Vector(0, 0, 1), 1.524),
    Part.Circle(App.Vector(109.22, 12.7, 0), App.Vector(0, 0, 1), 1.524),
    Part.Circle(App.Vector(95.25, 12.7, 0), App.Vector(0, 0, 1), 1.524),
], False)
sketch15.addConstraint([
    Sketcher.Constraint("Equal", 0, 1),
    Sketcher.Constraint("Equal", 1, 2),
    Sketcher.Constraint("Equal", 2, 3),
    Sketcher.Constraint("Equal", 3, 4),
    Sketcher.Constraint("Equal", 4, 5),
    Sketcher.Constraint("Equal", 5, 6),
    Sketcher.Constraint("Equal", 6, 7),
    Sketcher.Constraint("Horizontal", 0, 3, 1, 3),
    Sketcher.Constraint("Horizontal", 2, 3, 3, 3),
    Sketcher.Constraint("Horizontal", 4, 3, 5, 3),
    Sketcher.Constraint("Horizontal", 6, 3, 7, 3),
    Sketcher.Constraint("Vertical", 1, 3, 2, 3),
    Sketcher.Constraint("Vertical", 0, 3, 3, 3),
    Sketcher.Constraint("Vertical", 3, 3, 4, 3),
    Sketcher.Constraint("Vertical", 2, 3, 5, 3),
    Sketcher.Constraint("Vertical", 4, 3, 6, 3),
    Sketcher.Constraint("Vertical", 5, 3, 7, 3),
    Sketcher.Constraint("Diameter", 0, Q("0.12 in")),
    Sketcher.Constraint("DistanceY", 4, 3, 0, 3, Q("2 in")),
    Sketcher.Constraint("DistanceY", 6, 3, 3, 3, Q("2 in")),
    Sketcher.Constraint("DistanceX", -1, 1, 0, 3, Q("4.3 in")),
    Sketcher.Constraint("DistanceY", -1, 1, 2, 3, Q("2.5 in")),
    Sketcher.Constraint("DistanceY", -1, 1, 0, 3, Q("3.75 in")),
    Sketcher.Constraint("DistanceX", -1, 1, 1, 3, Q("3.75 in")),
])
sketch15.setExpression("Constraints[17]", "Params.sketch15_diameter")
pocket4 = body.newObject("PartDesign::Pocket", "Pocket003")
pocket4.Profile = sketch15
pocket4.setExpression("Length", "Params.pocket4_length")
pocket4.Reversed = True

sketch16 = body.newObject("Sketcher::SketchObject", "Sketch015")
sketch16.AttachmentSupport = (doc.getObject("XY_Plane"), [""])
sketch16.MapMode = "FlatFace"
sketch16.AttachmentOffset = App.Placement(App.Vector(0, 0, 0.3 * 25.4), App.Rotation())
sketch16.addGeometry([
    Part.Circle(App.Vector(102.87, 92.71, 0), App.Vector(0, 0, 1), 1.524),
    Part.Circle(App.Vector(116.84, 92.71, 0), App.Vector(0, 0, 1), 1.524),
    Part.Circle(App.Vector(102.87, 63.5, 0), App.Vector(0, 0, 1), 1.524),
    Part.Circle(App.Vector(116.84, 63.5, 0), App.Vector(0, 0, 1), 1.524),
    Part.Circle(App.Vector(101.6, 19.05, 0), App.Vector(0, 0, 1), 1.524),
    Part.Circle(App.Vector(116.84, 19.05, 0), App.Vector(0, 0, 1), 1.524),
], False)
sketch16.addConstraint([
    Sketcher.Constraint("Equal", 0, 1),
    Sketcher.Constraint("Equal", 1, 2),
    Sketcher.Constraint("Equal", 2, 3),
    Sketcher.Constraint("Equal", 3, 4),
    Sketcher.Constraint("Equal", 4, 5),
    Sketcher.Constraint("Horizontal", 0, 3, 1, 3),
    Sketcher.Constraint("Horizontal", 2, 3, 3, 3),
    Sketcher.Constraint("Horizontal", 4, 3, 5, 3),
    Sketcher.Constraint("Vertical", 0, 3, 2, 3),
    Sketcher.Constraint("Vertical", 1, 3, 3, 3),
    Sketcher.Constraint("Vertical", 3, 3, 5, 3),
    Sketcher.Constraint("Diameter", 0, Q("0.12 in")),
    Sketcher.Constraint("DistanceX", -1, 1, 4, 3, Q("4 in")),
    Sketcher.Constraint("DistanceX", -1, 1, 1, 3, Q("4.6 in")),
    Sketcher.Constraint("DistanceY", -1, 1, 2, 3, Q("2.5 in")),
    Sketcher.Constraint("DistanceY", 4, 3, 0, 3, Q("2.9 in")),
    Sketcher.Constraint("DistanceX", -1, 1, 0, 3, Q("4.05 in")),
    Sketcher.Constraint("DistanceY", -1, 1, 0, 3, Q("3.65 in")),
])
sketch16.setExpression("Constraints[11]", "Params.sketch16_diameter")
pocket5 = body.newObject("PartDesign::Pocket", "Pocket004")
pocket5.Profile = sketch16
pocket5.setExpression("Length", "Params.pocket5_length")

sketch17 = body.newObject("Sketcher::SketchObject", "Sketch016")
sketch17.AttachmentSupport = (doc.getObject("YZ_Plane"), [""])
sketch17.MapMode = "FlatFace"
sketch17.AttachmentOffset = App.Placement(App.Vector(0, 0, 3 * 25.4), App.Rotation())
sketch17.addGeometry([
    Part.Circle(App.Vector(6.35, 59.69, 0), App.Vector(0, 0, 1), 1.524),
    Part.Circle(App.Vector(6.35, 46.99, 0), App.Vector(0, 0, 1), 1.524),
    Part.Circle(App.Vector(31.75, 46.99, 0), App.Vector(0, 0, 1), 1.524),
    Part.Circle(App.Vector(31.75, 59.69, 0), App.Vector(0, 0, 1), 1.524),
], False)
sketch17.addConstraint([
    Sketcher.Constraint("Equal", 0, 1),
    Sketcher.Constraint("Equal", 1, 2),
    Sketcher.Constraint("Equal", 2, 3),
    Sketcher.Constraint("Horizontal", 1, 3, 2, 3),
    Sketcher.Constraint("Horizontal", 0, 3, 3, 3),
    Sketcher.Constraint("Vertical", 0, 3, 1, 3),
    Sketcher.Constraint("Vertical", 2, 3, 3, 3),
    Sketcher.Constraint("Diameter", 0, Q("0.12 in")),
    Sketcher.Constraint("DistanceX", 1, 3, 2, 3, Q("1 in")),
    Sketcher.Constraint("DistanceY", 1, 3, 0, 3, Q("0.5 in")),
    Sketcher.Constraint("DistanceX", -1, 1, 0, 3, Q("0.25 in")),
    Sketcher.Constraint("DistanceY", -1, 1, 0, 3, Q("2.35 in")),
])
sketch17.setExpression("Constraints[7]", "Params.sketch17_diameter")
pocket6 = body.newObject("PartDesign::Pocket", "Pocket005")
pocket6.Profile = sketch17
pocket6.setExpression("Length", "Params.pocket6_length")

sketch18 = body.newObject("Sketcher::SketchObject", "Sketch017")
sketch18.AttachmentSupport = (doc.getObject("XZ_Plane"), [""])
sketch18.MapMode = "FlatFace"
sketch18.addGeometry([
    Part.LineSegment(App.Vector(46.99, 41.91, 0), App.Vector(46.99, 7.62, 0)),
    Part.LineSegment(App.Vector(46.99, 7.62, 0), App.Vector(68.58, 7.62, 0)),
    Part.LineSegment(App.Vector(68.58, 7.62, 0), App.Vector(68.58, 41.91, 0)),
    Part.LineSegment(App.Vector(68.58, 41.91, 0), App.Vector(46.99, 41.91, 0)),
], False)
sketch18.addConstraint([
    Sketcher.Constraint("Coincident", 0, 2, 1, 1),
    Sketcher.Constraint("Coincident", 1, 2, 2, 1),
    Sketcher.Constraint("Coincident", 2, 2, 3, 1),
    Sketcher.Constraint("Coincident", 3, 2, 0, 1),
    Sketcher.Constraint("Vertical", 0),
    Sketcher.Constraint("Horizontal", 1),
    Sketcher.Constraint("Vertical", 2),
    Sketcher.Constraint("Horizontal", 3),
    Sketcher.Constraint("DistanceX", 1, 1, 1, 2, Q("0.85 in")),
    Sketcher.Constraint("DistanceY", 0, 2, 0, 1, Q("1.35 in")),
    Sketcher.Constraint("DistanceY", -1, 1, 0, 2, Q("0.3 in")),
    Sketcher.Constraint("DistanceX", -1, 1, 1, 2, Q("2.7 in")),
])
sketch18.setExpression("Constraints[8]", "Params.sketch18_width")
sketch18.setExpression("Constraints[9]", "Params.sketch18_height")
pocket7 = body.newObject("PartDesign::Pocket", "Pocket006")
pocket7.Profile = sketch18
pocket7.setExpression("Length", "Params.pocket7_length")

sketch19 = body.newObject("Sketcher::SketchObject", "Sketch018")
sketch19.AttachmentSupport = (doc.getObject("XZ_Plane"), [""])
sketch19.MapMode = "FlatFace"
sketch19.addGeometry([
    Part.Circle(App.Vector(57.785, 48.26, 0), App.Vector(0, 0, 1), 1.524),
    Part.Circle(App.Vector(57.785, 2.54, 0), App.Vector(0, 0, 1), 1.524),
], False)
sketch19.addConstraint([
    Sketcher.Constraint("Equal", 0, 1),
    Sketcher.Constraint("Vertical", 0, 3, 1, 3),
    Sketcher.Constraint("Diameter", 0, Q("0.12 in")),
    Sketcher.Constraint("DistanceY", -1, 1, 0, 3, Q("1.9 in")),
    Sketcher.Constraint("DistanceY", -1, 1, 1, 3, Q("0.1 in")),
    Sketcher.Constraint("DistanceX", -1, 1, 0, 3, Q("2.275 in")),
])
sketch19.setExpression("Constraints[2]", "Params.sketch19_diameter")
pocket8 = body.newObject("PartDesign::Pocket", "Pocket007")
pocket8.Profile = sketch19
pocket8.setExpression("Length", "Params.pocket8_length")

sketch20 = body.newObject("Sketcher::SketchObject", "Sketch019")
sketch20.AttachmentSupport = (doc.getObject("XY_Plane"), [""])
sketch20.MapMode = "FlatFace"
sketch20.AttachmentOffset = App.Placement(App.Vector(0, 0, -0.3 * 25.4), App.Rotation())
sketch20.addGeometry([
    Part.Circle(App.Vector(57.15, 102.87, 0), App.Vector(0, 0, 1), 1.27),
    Part.Circle(App.Vector(57.15, 39.37, 0), App.Vector(0, 0, 1), 1.27),
    Part.ArcOfCircle(Part.Circle(App.Vector(76.2, 71.12, 0), App.Vector(0, 0, 1), 1.27), math.radians(90), math.radians(180)),
    Part.ArcOfCircle(Part.Circle(App.Vector(76.2, 71.12, 0), App.Vector(0, 0, 1), 1.27), math.radians(-90), math.radians(90)),
    Part.ArcOfCircle(Part.Circle(App.Vector(76.2, 71.12, 0), App.Vector(0, 0, 1), 1.27), math.radians(180), math.radians(270)),
], False)
sketch20.addConstraint([
    Sketcher.Constraint("Tangent", 2, 1, 3, 2),
    Sketcher.Constraint("Tangent", 3, 1, 4, 2),
    Sketcher.Constraint("Tangent", 4, 1, 2, 2),
    Sketcher.Constraint("Equal", 0, 1),
    Sketcher.Constraint("Equal", 1, 2),
    Sketcher.Constraint("Horizontal", 3, 3, 4, 1),
    Sketcher.Constraint("Vertical", 0, 3, 1, 3),
    Sketcher.Constraint("Vertical", 4, 3, 2, 1),
    Sketcher.Constraint("Vertical", 2, 1, 3, 1),
    Sketcher.Constraint("Diameter", 0, Q("0.1 in")),
    Sketcher.Constraint("DistanceX", -1, 1, 2, 3, Q("3 in")),
    Sketcher.Constraint("DistanceY", -1, 1, 2, 3, Q("2.8 in")),
    Sketcher.Constraint("DistanceY", 1, 3, 0, 3, Q("2.5 in")),
    Sketcher.Constraint("DistanceY", 2, 1, 0, 3, Q("1.2 in")),
    Sketcher.Constraint("DistanceX", -1, 1, 0, 3, Q("2.25 in")),
])
sketch20.setExpression("Constraints[9]", "Params.sketch20_diameter")
pocket9 = body.newObject("PartDesign::Pocket", "Pocket008")
pocket9.Profile = sketch20
pocket9.setExpression("Length", "Params.pocket9_length")
pocket9.Reversed = True

doc.recompute()
